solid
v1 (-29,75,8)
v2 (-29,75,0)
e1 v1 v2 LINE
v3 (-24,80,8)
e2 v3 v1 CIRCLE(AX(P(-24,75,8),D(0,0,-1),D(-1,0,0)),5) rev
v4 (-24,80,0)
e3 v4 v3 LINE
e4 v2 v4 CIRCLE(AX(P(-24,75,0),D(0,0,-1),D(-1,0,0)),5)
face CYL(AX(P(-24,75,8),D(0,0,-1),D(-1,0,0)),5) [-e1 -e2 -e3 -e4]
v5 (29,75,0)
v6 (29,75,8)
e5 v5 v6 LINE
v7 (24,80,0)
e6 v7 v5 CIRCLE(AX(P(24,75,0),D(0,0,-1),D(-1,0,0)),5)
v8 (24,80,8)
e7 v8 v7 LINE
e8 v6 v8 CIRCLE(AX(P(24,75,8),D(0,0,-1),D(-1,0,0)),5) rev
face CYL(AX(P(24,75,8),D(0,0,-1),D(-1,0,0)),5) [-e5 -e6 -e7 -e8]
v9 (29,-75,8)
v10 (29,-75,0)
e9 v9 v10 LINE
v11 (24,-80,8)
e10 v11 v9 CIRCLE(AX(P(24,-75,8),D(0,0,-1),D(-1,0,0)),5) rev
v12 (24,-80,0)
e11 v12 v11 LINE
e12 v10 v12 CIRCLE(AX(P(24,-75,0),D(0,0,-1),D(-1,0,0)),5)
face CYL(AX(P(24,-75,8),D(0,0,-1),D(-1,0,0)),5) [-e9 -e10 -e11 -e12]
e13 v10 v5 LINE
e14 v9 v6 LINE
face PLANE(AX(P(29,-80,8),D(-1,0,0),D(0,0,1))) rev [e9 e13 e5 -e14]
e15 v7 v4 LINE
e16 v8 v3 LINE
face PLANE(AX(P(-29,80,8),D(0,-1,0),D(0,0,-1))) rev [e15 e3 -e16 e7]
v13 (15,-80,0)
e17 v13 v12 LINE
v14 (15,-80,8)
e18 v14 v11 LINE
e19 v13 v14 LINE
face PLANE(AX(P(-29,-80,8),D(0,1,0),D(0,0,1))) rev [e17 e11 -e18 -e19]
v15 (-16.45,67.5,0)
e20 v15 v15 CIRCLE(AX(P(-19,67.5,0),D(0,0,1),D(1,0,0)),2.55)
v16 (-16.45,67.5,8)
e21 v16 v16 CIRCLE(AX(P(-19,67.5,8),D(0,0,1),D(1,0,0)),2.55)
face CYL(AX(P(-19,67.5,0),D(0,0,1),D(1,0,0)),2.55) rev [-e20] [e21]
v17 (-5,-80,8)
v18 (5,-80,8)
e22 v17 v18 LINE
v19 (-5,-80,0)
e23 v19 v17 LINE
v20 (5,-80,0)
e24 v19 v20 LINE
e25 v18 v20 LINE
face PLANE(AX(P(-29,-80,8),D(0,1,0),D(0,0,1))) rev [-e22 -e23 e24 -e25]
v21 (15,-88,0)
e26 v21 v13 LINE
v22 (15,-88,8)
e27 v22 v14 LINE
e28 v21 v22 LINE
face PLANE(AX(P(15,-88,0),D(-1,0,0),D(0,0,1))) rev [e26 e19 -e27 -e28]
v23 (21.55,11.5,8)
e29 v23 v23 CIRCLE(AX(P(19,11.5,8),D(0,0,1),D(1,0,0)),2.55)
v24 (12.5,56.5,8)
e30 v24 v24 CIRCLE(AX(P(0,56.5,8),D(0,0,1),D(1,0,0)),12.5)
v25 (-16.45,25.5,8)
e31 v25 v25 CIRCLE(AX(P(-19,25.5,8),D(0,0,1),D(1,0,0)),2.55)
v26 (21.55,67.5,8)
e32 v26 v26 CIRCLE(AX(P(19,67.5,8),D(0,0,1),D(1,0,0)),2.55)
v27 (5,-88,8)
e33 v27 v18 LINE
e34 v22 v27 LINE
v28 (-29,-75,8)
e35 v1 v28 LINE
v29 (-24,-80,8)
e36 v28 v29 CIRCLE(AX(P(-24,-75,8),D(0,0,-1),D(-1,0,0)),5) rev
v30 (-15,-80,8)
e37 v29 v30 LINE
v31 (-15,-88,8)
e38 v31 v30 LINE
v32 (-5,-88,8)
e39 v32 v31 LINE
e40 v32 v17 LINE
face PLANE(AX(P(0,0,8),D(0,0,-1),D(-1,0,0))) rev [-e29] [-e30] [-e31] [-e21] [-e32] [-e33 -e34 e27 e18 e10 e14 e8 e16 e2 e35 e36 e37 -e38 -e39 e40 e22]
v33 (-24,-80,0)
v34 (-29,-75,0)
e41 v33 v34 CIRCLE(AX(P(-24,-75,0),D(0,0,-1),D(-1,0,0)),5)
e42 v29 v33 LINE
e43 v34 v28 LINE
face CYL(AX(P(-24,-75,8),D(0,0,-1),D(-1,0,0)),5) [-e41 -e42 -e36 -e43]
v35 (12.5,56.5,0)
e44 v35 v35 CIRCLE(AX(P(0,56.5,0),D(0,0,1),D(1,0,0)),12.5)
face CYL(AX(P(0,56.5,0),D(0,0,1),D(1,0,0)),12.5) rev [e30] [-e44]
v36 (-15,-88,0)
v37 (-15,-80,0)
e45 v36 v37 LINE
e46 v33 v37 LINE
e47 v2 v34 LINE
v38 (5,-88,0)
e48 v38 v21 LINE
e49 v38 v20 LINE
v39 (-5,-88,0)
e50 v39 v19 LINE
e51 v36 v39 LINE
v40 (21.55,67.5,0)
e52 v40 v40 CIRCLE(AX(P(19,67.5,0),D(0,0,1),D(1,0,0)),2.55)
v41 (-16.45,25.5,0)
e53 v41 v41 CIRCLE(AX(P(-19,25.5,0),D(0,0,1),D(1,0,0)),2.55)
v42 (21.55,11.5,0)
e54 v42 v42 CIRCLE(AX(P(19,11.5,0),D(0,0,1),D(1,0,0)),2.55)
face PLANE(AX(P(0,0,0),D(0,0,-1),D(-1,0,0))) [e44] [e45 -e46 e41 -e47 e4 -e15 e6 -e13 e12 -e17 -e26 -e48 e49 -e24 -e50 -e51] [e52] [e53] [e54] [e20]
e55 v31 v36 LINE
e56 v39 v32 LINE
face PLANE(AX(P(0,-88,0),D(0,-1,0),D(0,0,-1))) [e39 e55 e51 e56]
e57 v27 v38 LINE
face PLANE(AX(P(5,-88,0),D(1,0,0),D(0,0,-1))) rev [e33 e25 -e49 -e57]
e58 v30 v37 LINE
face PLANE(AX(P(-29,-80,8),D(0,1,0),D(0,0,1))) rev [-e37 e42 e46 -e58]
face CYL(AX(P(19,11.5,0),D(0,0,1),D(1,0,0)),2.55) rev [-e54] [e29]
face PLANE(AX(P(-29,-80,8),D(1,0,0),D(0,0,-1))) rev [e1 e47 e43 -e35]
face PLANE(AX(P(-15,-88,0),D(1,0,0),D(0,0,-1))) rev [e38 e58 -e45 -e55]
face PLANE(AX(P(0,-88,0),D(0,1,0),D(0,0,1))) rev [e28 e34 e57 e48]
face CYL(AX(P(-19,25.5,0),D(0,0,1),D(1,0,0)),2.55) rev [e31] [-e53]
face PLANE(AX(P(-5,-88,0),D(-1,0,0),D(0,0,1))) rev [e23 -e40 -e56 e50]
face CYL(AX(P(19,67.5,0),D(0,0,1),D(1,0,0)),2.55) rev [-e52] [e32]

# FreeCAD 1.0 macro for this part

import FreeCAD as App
import Part
import Sketcher

V = App.Vector
Q = App.Units.Quantity


def edges_at(feature, points):
    """Names of the edges that pass closest to the given points."""
    edges = feature.Shape.Edges
    near = lambda p: min(range(len(edges)), key=lambda i: edges[i].distToShape(Part.Vertex(*p))[0])
    return sorted({f"Edge{near(p) + 1}" for p in points})


def add_polygon(sketch, points):
    """Adds a closed chain of lines whose ends are joined by coincident constraints."""
    first, n = sketch.GeometryCount, len(points)
    for a, b in zip(points, points[1:] + points[:1]):
        sketch.addGeometry(Part.LineSegment(App.Vector(*a, 0), App.Vector(*b, 0)), False)
    for i in range(n):
        sketch.addConstraint(Sketcher.Constraint("Coincident", first + i, 2, first + (i + 1) % n, 1))

doc = App.newDocument("Part")
body = doc.addObject("PartDesign::Body", "Body")

# Sketch on XY plane
sketch1 = doc.addObject("Sketcher::SketchObject", "Sketch")
body.addObject(sketch1)
sketch1.AttachmentSupport = (doc.XY_Plane, [""])
sketch1.MapMode = "FlatFace"
add_polygon(sketch1, [(-29, 80), (-29, -80), (29, -80), (29, 80)])  # lines 0-3
sketch1.addConstraint([
    Sketcher.Constraint("Vertical", 0),
    Sketcher.Constraint("Horizontal", 1),
    Sketcher.Constraint("Vertical", 2),
    Sketcher.Constraint("Horizontal", 3),
    Sketcher.Constraint("Symmetric", 0, 2, 2, 2, -1, 1),
    Sketcher.Constraint("DistanceX", 1, 1, 1, 2, Q("58 mm")),
    Sketcher.Constraint("DistanceY", 0, 2, 0, 1, Q("160 mm")),
])
pad1 = doc.addObject("PartDesign::Pad", "Pad")
body.addObject(pad1)
pad1.Profile = sketch1
pad1.Length = 8

# Sketch on XY plane
sketch2 = doc.addObject("Sketcher::SketchObject", "Sketch001")
body.addObject(sketch2)
sketch2.AttachmentSupport = (doc.XY_Plane, [""])
sketch2.MapMode = "FlatFace"
sketch2.AttachmentOffset = App.Placement(V(0, 0, 8), App.Rotation())
sketch2.addGeometry([
    Part.Circle(V(-19, 67.5, 0), V(0, 0, 1), 2.5),  # 0
    Part.Circle(V(19, 67.5, 0), V(0, 0, 1), 2.5),  # 1
    Part.Circle(V(-19, 25.5, 0), V(0, 0, 1), 2.5),  # 2
    Part.Circle(V(19, 11.5, 0), V(0, 0, 1), 2.5),  # 3
    Part.Circle(V(0, 56.5, 0), V(0, 0, 1), 12.5),  # 4
], False)
sketch2.addConstraint([
    Sketcher.Constraint("Equal", 0, 1),
    Sketcher.Constraint("Equal", 1, 2),
    Sketcher.Constraint("Equal", 2, 3),
    Sketcher.Constraint("Symmetric", 0, 3, 1, 3, -2),
    Sketcher.Constraint("PointOnObject", 4, 3, -2),
    Sketcher.Constraint("Vertical", 0, 3, 2, 3),
    Sketcher.Constraint("Vertical", 1, 3, 3, 3),
    Sketcher.Constraint("Diameter", 4, Q("25 mm")),
    Sketcher.Constraint("Diameter", 0, Q("5.1 mm")),
    Sketcher.Constraint("DistanceX", 0, 3, -1, 1, Q("19 mm")),
    Sketcher.Constraint("DistanceY", 2, 3, 0, 3, Q("42 mm")),
    Sketcher.Constraint("DistanceY", 3, 3, 2, 3, Q("14 mm")),
    Sketcher.Constraint("DistanceY", 4, 3, 0, 3, Q("11 mm")),
    Sketcher.Constraint("DistanceY", -1, 1, 0, 3, Q("67.5 mm")),
])
pocket1 = doc.addObject("PartDesign::Pocket", "Pocket")
body.addObject(pocket1)
pocket1.Profile = sketch2
pocket1.Type = "ThroughAll"

# Sketch on XZ plane
sketch3 = doc.addObject("Sketcher::SketchObject", "Sketch002")
body.addObject(sketch3)
sketch3.AttachmentSupport = (doc.XZ_Plane, [""])
sketch3.MapMode = "FlatFace"
sketch3.AttachmentOffset = App.Placement(V(0, 0, 80), App.Rotation())
add_polygon(sketch3, [(-15, 8), (-15, 0), (-5, 0), (-5, 8)])  # lines 0-3
add_polygon(sketch3, [(5, 8), (5, 0), (15, 0), (15, 8)])  # lines 4-7
sketch3.addConstraint([
    Sketcher.Constraint("Vertical", 0),
    Sketcher.Constraint("Horizontal", 1),
    Sketcher.Constraint("Vertical", 2),
    Sketcher.Constraint("Horizontal", 3),
    Sketcher.Constraint("Vertical", 4),
    Sketcher.Constraint("Horizontal", 5),
    Sketcher.Constraint("Vertical", 6),
    Sketcher.Constraint("Horizontal", 7),
    Sketcher.Constraint("Symmetric", 1, 2, 4, 2, -1, 1),
    Sketcher.Constraint("Symmetric", 0, 2, 5, 2, -2),
    Sketcher.Constraint("Horizontal", 3, 2, 6, 2),
    Sketcher.Constraint("DistanceX", 1, 1, 1, 2, Q("10 mm")),
    Sketcher.Constraint("DistanceY", 0, 2, 0, 1, Q("8 mm")),
    Sketcher.Constraint("DistanceX", 0, 2, -1, 1, Q("15 mm")),
])
pad2 = doc.addObject("PartDesign::Pad", "Pad001")
body.addObject(pad2)
pad2.Profile = sketch3
pad2.Length = 8
doc.recompute()

fillet = doc.addObject("PartDesign::Fillet", "Fillet")
body.addObject(fillet)
fillet.Base = (pad2, edges_at(pad2, [
    (29, 80, 4),
    (-29, 80, 4),
    (29, -80, 4),
    (-29, -80, 4),
]))
fillet.Radius = 5

doc.recompute()
